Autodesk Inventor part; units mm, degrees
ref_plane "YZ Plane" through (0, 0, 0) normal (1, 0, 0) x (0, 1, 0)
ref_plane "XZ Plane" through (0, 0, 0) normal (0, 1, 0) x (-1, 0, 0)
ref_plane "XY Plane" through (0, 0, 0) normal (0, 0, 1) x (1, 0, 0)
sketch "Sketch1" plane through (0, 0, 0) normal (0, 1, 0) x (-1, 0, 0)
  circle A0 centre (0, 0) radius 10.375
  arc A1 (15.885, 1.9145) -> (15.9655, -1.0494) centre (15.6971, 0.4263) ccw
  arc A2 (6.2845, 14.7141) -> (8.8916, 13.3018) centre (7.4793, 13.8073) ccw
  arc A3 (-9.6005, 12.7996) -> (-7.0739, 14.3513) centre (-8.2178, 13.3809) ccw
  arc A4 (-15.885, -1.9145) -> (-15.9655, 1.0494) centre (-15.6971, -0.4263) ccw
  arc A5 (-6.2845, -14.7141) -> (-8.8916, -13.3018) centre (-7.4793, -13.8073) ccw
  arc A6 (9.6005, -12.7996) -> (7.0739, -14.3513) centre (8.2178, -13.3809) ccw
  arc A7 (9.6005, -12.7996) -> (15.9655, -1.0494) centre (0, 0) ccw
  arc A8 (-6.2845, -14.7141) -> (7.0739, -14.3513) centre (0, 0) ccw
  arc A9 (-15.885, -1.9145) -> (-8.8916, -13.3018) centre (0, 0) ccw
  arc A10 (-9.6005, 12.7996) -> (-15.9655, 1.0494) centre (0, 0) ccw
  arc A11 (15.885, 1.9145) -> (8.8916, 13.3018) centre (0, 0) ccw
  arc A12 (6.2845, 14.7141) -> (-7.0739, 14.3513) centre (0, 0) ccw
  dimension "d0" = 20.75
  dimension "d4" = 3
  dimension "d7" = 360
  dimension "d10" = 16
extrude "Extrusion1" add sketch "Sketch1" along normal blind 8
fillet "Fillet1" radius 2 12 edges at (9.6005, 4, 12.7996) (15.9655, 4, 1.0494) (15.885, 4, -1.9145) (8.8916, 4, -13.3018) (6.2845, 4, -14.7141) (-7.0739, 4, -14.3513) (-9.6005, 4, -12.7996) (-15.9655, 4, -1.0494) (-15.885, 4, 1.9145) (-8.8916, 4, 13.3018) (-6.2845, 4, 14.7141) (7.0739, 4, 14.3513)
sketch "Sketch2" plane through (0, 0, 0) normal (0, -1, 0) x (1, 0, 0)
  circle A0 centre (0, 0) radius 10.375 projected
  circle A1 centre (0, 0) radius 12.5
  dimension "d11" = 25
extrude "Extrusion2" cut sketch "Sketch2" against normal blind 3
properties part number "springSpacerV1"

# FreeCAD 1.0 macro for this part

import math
import FreeCAD as App
import Part
import Sketcher


def edges_at(feature, points):
    """Names of the edges that pass closest to the given points."""
    edges = feature.Shape.Edges
    near = lambda p: min(range(len(edges)), key=lambda i: edges[i].distToShape(Part.Vertex(*p))[0])
    return sorted({f"Edge{near(p) + 1}" for p in points})

doc = App.newDocument("Part")
params = doc.addObject("Spreadsheet::Sheet", "Params")
for row, (alias, value) in enumerate([
    ("sketch1_radius", "16 mm"),
    ("sketch1_radius2", "1.5 mm"),
    ("sketch1_diameter", "20.75 mm"),
    ("pad1_length", "8 mm"),
    ("fillet_radius", "2 mm"),
    ("sketch2_diameter", "25 mm"),
    ("sketch2_diameter2", "20.75 mm"),
    ("pocket1_length", "3 mm"),
], start=1):
    params.set(f"A{row}", alias)
    params.set(f"B{row}", "=" + value)
    params.setAlias(f"B{row}", alias)

body = doc.addObject("PartDesign::Body", "Body")

sketch1 = doc.addObject("Sketcher::SketchObject", "Sketch")
body.addObject(sketch1)
sketch1.AttachmentSupport = (doc.XZ_Plane, [""])
sketch1.MapMode = "FlatFace"
sketch1.addGeometry([
    Part.ArcOfCircle(Part.Circle(App.Vector(-15.6971, 0.4263, 0), App.Vector(0, 0, 1), 1.500015), math.radians(-100.308263), math.radians(97.196082)),
    Part.ArcOfCircle(Part.Circle(App.Vector(0, 0, 0), App.Vector(0, 0, 1), 15.999954), math.radians(123.760783), math.radians(173.127716)),
    Part.ArcOfCircle(Part.Circle(App.Vector(-7.4793, 13.8073, 0), App.Vector(0, 0, 1), 1.499944), math.radians(-160.306351), math.radians(37.196879)),
    Part.ArcOfCircle(Part.Circle(App.Vector(0, 0, 0), App.Vector(0, 0, 1), 15.99999), math.radians(63.760849), math.radians(113.127683)),
    Part.ArcOfCircle(Part.Circle(App.Vector(8.2178, 13.3809, 0), App.Vector(0, 0, 1), 1.499923), math.radians(139.691195), math.radians(337.19766)),
    Part.ArcOfCircle(Part.Circle(App.Vector(0, 0, 0), App.Vector(0, 0, 1), 15.999954), math.radians(3.760598), math.radians(53.127811)),
    Part.ArcOfCircle(Part.Circle(App.Vector(15.6971, -0.4263, 0), App.Vector(0, 0, 1), 1.500015), math.radians(79.691737), math.radians(277.196082)),
    Part.ArcOfCircle(Part.Circle(App.Vector(0, 0, 0), App.Vector(0, 0, 1), 15.999954), math.radians(-56.239217), math.radians(-6.872284)),
    Part.ArcOfCircle(Part.Circle(App.Vector(7.4793, -13.8073, 0), App.Vector(0, 0, 1), 1.499944), math.radians(19.693649), math.radians(217.196879)),
    Part.ArcOfCircle(Part.Circle(App.Vector(0, 0, 0), App.Vector(0, 0, 1), 15.99999), math.radians(-116.239151), math.radians(-66.872317)),
    Part.ArcOfCircle(Part.Circle(App.Vector(-8.2178, -13.3809, 0), App.Vector(0, 0, 1), 1.499923), math.radians(-40.308805), math.radians(157.19766)),
    Part.ArcOfCircle(Part.Circle(App.Vector(0, 0, 0), App.Vector(0, 0, 1), 15.999954), math.radians(-176.239402), math.radians(-126.872189)),
    Part.Circle(App.Vector(0, 0, 0), App.Vector(0, 0, 1), 10.375),
], False)
sketch1.addConstraint([
    Sketcher.Constraint("Coincident", 0, 2, 1, 2),
    Sketcher.Constraint("Coincident", 1, 1, 2, 1),
    Sketcher.Constraint("Coincident", 2, 2, 3, 2),
    Sketcher.Constraint("Coincident", 3, 1, 4, 1),
    Sketcher.Constraint("Coincident", 4, 2, 5, 2),
    Sketcher.Constraint("Coincident", 5, 1, 6, 1),
    Sketcher.Constraint("Coincident", 6, 2, 7, 2),
    Sketcher.Constraint("Coincident", 7, 1, 8, 1),
    Sketcher.Constraint("Coincident", 8, 2, 9, 2),
    Sketcher.Constraint("Coincident", 9, 1, 10, 1),
    Sketcher.Constraint("Coincident", 10, 2, 11, 2),
    Sketcher.Constraint("Coincident", 11, 1, 0, 1),
    Sketcher.Constraint("Coincident", 1, 3, -1, 1),
    Sketcher.Constraint("Coincident", 3, 3, -1, 1),
    Sketcher.Constraint("Coincident", 5, 3, -1, 1),
    Sketcher.Constraint("Coincident", 7, 3, -1, 1),
    Sketcher.Constraint("Coincident", 9, 3, -1, 1),
    Sketcher.Constraint("Coincident", 11, 3, -1, 1),
    Sketcher.Constraint("Coincident", 12, 3, -1, 1),
    Sketcher.Constraint("Equal", 0, 2),
    Sketcher.Constraint("Equal", 1, 3),
    Sketcher.Constraint("Equal", 2, 4),
    Sketcher.Constraint("Equal", 3, 5),
    Sketcher.Constraint("Equal", 4, 6),
    Sketcher.Constraint("Equal", 5, 7),
    Sketcher.Constraint("Equal", 6, 8),
    Sketcher.Constraint("Equal", 7, 9),
    Sketcher.Constraint("Equal", 8, 10),
    Sketcher.Constraint("Equal", 9, 11),
    Sketcher.Constraint("Symmetric", 0, 3, 6, 3, -1, 1),
    Sketcher.Constraint("Symmetric", 2, 3, 8, 3, -1, 1),
    Sketcher.Constraint("Symmetric", 4, 3, 10, 3, -1, 1),
    Sketcher.Constraint("Radius", 1, 16.0),
    Sketcher.Constraint("Radius", 0, 1.5),
    Sketcher.Constraint("Diameter", 12, 20.75),
    Sketcher.Constraint("DistanceX", 0, 3, -1, 1, 15.697),
    Sketcher.Constraint("DistanceY", -1, 1, 4, 3, 13.381),
    Sketcher.Constraint("DistanceX", 0, 2, -1, 1, 15.885),
    Sketcher.Constraint("DistanceY", -1, 1, 2, 2, 14.714),
    Sketcher.Constraint("DistanceX", -1, 1, 3, 1, 7.074),
    Sketcher.Constraint("DistanceY", 0, 3, 2, 3, 13.381),
])
sketch1.setExpression("Constraints[32]", "Params.sketch1_radius")
sketch1.setExpression("Constraints[33]", "Params.sketch1_radius2")
sketch1.setExpression("Constraints[34]", "Params.sketch1_diameter")
pad1 = doc.addObject("PartDesign::Pad", "Pad")
body.addObject(pad1)
pad1.Profile = sketch1
pad1.setExpression("Length", "Params.pad1_length")
pad1.Reversed = True
doc.recompute()

fillet = doc.addObject("PartDesign::Fillet", "Fillet")
body.addObject(fillet)
fillet.Base = (pad1, edges_at(pad1, [
    (9.601, 4, 12.8),
    (15.966, 4, 1.049),
    (15.885, 4, -1.915),
    (8.892, 4, -13.302),
    (6.285, 4, -14.714),
    (-7.074, 4, -14.351),
    (-9.601, 4, -12.8),
    (-15.966, 4, -1.049),
    (-15.885, 4, 1.915),
    (-8.892, 4, 13.302),
    (-6.285, 4, 14.714),
    (7.074, 4, 14.351),
]))
fillet.setExpression("Radius", "Params.fillet_radius")

sketch2 = doc.addObject("Sketcher::SketchObject", "Sketch001")
body.addObject(sketch2)
sketch2.AttachmentSupport = (doc.XZ_Plane, [""])
sketch2.MapMode = "FlatFace"
sketch2.addGeometry([
    Part.Circle(App.Vector(0, 0, 0), App.Vector(0, 0, 1), 12.5),
    Part.Circle(App.Vector(0, 0, 0), App.Vector(0, 0, 1), 10.375),
], False)
sketch2.addConstraint([
    Sketcher.Constraint("Coincident", 0, 3, -1, 1),
    Sketcher.Constraint("Coincident", 1, 3, -1, 1),
    Sketcher.Constraint("Diameter", 0, 25.0),
    Sketcher.Constraint("Diameter", 1, 20.75),
])
sketch2.setExpression("Constraints[2]", "Params.sketch2_diameter")
sketch2.setExpression("Constraints[3]", "Params.sketch2_diameter2")
pocket1 = doc.addObject("PartDesign::Pocket", "Pocket")
body.addObject(pocket1)
pocket1.Profile = sketch2
pocket1.setExpression("Length", "Params.pocket1_length")

doc.recompute()
